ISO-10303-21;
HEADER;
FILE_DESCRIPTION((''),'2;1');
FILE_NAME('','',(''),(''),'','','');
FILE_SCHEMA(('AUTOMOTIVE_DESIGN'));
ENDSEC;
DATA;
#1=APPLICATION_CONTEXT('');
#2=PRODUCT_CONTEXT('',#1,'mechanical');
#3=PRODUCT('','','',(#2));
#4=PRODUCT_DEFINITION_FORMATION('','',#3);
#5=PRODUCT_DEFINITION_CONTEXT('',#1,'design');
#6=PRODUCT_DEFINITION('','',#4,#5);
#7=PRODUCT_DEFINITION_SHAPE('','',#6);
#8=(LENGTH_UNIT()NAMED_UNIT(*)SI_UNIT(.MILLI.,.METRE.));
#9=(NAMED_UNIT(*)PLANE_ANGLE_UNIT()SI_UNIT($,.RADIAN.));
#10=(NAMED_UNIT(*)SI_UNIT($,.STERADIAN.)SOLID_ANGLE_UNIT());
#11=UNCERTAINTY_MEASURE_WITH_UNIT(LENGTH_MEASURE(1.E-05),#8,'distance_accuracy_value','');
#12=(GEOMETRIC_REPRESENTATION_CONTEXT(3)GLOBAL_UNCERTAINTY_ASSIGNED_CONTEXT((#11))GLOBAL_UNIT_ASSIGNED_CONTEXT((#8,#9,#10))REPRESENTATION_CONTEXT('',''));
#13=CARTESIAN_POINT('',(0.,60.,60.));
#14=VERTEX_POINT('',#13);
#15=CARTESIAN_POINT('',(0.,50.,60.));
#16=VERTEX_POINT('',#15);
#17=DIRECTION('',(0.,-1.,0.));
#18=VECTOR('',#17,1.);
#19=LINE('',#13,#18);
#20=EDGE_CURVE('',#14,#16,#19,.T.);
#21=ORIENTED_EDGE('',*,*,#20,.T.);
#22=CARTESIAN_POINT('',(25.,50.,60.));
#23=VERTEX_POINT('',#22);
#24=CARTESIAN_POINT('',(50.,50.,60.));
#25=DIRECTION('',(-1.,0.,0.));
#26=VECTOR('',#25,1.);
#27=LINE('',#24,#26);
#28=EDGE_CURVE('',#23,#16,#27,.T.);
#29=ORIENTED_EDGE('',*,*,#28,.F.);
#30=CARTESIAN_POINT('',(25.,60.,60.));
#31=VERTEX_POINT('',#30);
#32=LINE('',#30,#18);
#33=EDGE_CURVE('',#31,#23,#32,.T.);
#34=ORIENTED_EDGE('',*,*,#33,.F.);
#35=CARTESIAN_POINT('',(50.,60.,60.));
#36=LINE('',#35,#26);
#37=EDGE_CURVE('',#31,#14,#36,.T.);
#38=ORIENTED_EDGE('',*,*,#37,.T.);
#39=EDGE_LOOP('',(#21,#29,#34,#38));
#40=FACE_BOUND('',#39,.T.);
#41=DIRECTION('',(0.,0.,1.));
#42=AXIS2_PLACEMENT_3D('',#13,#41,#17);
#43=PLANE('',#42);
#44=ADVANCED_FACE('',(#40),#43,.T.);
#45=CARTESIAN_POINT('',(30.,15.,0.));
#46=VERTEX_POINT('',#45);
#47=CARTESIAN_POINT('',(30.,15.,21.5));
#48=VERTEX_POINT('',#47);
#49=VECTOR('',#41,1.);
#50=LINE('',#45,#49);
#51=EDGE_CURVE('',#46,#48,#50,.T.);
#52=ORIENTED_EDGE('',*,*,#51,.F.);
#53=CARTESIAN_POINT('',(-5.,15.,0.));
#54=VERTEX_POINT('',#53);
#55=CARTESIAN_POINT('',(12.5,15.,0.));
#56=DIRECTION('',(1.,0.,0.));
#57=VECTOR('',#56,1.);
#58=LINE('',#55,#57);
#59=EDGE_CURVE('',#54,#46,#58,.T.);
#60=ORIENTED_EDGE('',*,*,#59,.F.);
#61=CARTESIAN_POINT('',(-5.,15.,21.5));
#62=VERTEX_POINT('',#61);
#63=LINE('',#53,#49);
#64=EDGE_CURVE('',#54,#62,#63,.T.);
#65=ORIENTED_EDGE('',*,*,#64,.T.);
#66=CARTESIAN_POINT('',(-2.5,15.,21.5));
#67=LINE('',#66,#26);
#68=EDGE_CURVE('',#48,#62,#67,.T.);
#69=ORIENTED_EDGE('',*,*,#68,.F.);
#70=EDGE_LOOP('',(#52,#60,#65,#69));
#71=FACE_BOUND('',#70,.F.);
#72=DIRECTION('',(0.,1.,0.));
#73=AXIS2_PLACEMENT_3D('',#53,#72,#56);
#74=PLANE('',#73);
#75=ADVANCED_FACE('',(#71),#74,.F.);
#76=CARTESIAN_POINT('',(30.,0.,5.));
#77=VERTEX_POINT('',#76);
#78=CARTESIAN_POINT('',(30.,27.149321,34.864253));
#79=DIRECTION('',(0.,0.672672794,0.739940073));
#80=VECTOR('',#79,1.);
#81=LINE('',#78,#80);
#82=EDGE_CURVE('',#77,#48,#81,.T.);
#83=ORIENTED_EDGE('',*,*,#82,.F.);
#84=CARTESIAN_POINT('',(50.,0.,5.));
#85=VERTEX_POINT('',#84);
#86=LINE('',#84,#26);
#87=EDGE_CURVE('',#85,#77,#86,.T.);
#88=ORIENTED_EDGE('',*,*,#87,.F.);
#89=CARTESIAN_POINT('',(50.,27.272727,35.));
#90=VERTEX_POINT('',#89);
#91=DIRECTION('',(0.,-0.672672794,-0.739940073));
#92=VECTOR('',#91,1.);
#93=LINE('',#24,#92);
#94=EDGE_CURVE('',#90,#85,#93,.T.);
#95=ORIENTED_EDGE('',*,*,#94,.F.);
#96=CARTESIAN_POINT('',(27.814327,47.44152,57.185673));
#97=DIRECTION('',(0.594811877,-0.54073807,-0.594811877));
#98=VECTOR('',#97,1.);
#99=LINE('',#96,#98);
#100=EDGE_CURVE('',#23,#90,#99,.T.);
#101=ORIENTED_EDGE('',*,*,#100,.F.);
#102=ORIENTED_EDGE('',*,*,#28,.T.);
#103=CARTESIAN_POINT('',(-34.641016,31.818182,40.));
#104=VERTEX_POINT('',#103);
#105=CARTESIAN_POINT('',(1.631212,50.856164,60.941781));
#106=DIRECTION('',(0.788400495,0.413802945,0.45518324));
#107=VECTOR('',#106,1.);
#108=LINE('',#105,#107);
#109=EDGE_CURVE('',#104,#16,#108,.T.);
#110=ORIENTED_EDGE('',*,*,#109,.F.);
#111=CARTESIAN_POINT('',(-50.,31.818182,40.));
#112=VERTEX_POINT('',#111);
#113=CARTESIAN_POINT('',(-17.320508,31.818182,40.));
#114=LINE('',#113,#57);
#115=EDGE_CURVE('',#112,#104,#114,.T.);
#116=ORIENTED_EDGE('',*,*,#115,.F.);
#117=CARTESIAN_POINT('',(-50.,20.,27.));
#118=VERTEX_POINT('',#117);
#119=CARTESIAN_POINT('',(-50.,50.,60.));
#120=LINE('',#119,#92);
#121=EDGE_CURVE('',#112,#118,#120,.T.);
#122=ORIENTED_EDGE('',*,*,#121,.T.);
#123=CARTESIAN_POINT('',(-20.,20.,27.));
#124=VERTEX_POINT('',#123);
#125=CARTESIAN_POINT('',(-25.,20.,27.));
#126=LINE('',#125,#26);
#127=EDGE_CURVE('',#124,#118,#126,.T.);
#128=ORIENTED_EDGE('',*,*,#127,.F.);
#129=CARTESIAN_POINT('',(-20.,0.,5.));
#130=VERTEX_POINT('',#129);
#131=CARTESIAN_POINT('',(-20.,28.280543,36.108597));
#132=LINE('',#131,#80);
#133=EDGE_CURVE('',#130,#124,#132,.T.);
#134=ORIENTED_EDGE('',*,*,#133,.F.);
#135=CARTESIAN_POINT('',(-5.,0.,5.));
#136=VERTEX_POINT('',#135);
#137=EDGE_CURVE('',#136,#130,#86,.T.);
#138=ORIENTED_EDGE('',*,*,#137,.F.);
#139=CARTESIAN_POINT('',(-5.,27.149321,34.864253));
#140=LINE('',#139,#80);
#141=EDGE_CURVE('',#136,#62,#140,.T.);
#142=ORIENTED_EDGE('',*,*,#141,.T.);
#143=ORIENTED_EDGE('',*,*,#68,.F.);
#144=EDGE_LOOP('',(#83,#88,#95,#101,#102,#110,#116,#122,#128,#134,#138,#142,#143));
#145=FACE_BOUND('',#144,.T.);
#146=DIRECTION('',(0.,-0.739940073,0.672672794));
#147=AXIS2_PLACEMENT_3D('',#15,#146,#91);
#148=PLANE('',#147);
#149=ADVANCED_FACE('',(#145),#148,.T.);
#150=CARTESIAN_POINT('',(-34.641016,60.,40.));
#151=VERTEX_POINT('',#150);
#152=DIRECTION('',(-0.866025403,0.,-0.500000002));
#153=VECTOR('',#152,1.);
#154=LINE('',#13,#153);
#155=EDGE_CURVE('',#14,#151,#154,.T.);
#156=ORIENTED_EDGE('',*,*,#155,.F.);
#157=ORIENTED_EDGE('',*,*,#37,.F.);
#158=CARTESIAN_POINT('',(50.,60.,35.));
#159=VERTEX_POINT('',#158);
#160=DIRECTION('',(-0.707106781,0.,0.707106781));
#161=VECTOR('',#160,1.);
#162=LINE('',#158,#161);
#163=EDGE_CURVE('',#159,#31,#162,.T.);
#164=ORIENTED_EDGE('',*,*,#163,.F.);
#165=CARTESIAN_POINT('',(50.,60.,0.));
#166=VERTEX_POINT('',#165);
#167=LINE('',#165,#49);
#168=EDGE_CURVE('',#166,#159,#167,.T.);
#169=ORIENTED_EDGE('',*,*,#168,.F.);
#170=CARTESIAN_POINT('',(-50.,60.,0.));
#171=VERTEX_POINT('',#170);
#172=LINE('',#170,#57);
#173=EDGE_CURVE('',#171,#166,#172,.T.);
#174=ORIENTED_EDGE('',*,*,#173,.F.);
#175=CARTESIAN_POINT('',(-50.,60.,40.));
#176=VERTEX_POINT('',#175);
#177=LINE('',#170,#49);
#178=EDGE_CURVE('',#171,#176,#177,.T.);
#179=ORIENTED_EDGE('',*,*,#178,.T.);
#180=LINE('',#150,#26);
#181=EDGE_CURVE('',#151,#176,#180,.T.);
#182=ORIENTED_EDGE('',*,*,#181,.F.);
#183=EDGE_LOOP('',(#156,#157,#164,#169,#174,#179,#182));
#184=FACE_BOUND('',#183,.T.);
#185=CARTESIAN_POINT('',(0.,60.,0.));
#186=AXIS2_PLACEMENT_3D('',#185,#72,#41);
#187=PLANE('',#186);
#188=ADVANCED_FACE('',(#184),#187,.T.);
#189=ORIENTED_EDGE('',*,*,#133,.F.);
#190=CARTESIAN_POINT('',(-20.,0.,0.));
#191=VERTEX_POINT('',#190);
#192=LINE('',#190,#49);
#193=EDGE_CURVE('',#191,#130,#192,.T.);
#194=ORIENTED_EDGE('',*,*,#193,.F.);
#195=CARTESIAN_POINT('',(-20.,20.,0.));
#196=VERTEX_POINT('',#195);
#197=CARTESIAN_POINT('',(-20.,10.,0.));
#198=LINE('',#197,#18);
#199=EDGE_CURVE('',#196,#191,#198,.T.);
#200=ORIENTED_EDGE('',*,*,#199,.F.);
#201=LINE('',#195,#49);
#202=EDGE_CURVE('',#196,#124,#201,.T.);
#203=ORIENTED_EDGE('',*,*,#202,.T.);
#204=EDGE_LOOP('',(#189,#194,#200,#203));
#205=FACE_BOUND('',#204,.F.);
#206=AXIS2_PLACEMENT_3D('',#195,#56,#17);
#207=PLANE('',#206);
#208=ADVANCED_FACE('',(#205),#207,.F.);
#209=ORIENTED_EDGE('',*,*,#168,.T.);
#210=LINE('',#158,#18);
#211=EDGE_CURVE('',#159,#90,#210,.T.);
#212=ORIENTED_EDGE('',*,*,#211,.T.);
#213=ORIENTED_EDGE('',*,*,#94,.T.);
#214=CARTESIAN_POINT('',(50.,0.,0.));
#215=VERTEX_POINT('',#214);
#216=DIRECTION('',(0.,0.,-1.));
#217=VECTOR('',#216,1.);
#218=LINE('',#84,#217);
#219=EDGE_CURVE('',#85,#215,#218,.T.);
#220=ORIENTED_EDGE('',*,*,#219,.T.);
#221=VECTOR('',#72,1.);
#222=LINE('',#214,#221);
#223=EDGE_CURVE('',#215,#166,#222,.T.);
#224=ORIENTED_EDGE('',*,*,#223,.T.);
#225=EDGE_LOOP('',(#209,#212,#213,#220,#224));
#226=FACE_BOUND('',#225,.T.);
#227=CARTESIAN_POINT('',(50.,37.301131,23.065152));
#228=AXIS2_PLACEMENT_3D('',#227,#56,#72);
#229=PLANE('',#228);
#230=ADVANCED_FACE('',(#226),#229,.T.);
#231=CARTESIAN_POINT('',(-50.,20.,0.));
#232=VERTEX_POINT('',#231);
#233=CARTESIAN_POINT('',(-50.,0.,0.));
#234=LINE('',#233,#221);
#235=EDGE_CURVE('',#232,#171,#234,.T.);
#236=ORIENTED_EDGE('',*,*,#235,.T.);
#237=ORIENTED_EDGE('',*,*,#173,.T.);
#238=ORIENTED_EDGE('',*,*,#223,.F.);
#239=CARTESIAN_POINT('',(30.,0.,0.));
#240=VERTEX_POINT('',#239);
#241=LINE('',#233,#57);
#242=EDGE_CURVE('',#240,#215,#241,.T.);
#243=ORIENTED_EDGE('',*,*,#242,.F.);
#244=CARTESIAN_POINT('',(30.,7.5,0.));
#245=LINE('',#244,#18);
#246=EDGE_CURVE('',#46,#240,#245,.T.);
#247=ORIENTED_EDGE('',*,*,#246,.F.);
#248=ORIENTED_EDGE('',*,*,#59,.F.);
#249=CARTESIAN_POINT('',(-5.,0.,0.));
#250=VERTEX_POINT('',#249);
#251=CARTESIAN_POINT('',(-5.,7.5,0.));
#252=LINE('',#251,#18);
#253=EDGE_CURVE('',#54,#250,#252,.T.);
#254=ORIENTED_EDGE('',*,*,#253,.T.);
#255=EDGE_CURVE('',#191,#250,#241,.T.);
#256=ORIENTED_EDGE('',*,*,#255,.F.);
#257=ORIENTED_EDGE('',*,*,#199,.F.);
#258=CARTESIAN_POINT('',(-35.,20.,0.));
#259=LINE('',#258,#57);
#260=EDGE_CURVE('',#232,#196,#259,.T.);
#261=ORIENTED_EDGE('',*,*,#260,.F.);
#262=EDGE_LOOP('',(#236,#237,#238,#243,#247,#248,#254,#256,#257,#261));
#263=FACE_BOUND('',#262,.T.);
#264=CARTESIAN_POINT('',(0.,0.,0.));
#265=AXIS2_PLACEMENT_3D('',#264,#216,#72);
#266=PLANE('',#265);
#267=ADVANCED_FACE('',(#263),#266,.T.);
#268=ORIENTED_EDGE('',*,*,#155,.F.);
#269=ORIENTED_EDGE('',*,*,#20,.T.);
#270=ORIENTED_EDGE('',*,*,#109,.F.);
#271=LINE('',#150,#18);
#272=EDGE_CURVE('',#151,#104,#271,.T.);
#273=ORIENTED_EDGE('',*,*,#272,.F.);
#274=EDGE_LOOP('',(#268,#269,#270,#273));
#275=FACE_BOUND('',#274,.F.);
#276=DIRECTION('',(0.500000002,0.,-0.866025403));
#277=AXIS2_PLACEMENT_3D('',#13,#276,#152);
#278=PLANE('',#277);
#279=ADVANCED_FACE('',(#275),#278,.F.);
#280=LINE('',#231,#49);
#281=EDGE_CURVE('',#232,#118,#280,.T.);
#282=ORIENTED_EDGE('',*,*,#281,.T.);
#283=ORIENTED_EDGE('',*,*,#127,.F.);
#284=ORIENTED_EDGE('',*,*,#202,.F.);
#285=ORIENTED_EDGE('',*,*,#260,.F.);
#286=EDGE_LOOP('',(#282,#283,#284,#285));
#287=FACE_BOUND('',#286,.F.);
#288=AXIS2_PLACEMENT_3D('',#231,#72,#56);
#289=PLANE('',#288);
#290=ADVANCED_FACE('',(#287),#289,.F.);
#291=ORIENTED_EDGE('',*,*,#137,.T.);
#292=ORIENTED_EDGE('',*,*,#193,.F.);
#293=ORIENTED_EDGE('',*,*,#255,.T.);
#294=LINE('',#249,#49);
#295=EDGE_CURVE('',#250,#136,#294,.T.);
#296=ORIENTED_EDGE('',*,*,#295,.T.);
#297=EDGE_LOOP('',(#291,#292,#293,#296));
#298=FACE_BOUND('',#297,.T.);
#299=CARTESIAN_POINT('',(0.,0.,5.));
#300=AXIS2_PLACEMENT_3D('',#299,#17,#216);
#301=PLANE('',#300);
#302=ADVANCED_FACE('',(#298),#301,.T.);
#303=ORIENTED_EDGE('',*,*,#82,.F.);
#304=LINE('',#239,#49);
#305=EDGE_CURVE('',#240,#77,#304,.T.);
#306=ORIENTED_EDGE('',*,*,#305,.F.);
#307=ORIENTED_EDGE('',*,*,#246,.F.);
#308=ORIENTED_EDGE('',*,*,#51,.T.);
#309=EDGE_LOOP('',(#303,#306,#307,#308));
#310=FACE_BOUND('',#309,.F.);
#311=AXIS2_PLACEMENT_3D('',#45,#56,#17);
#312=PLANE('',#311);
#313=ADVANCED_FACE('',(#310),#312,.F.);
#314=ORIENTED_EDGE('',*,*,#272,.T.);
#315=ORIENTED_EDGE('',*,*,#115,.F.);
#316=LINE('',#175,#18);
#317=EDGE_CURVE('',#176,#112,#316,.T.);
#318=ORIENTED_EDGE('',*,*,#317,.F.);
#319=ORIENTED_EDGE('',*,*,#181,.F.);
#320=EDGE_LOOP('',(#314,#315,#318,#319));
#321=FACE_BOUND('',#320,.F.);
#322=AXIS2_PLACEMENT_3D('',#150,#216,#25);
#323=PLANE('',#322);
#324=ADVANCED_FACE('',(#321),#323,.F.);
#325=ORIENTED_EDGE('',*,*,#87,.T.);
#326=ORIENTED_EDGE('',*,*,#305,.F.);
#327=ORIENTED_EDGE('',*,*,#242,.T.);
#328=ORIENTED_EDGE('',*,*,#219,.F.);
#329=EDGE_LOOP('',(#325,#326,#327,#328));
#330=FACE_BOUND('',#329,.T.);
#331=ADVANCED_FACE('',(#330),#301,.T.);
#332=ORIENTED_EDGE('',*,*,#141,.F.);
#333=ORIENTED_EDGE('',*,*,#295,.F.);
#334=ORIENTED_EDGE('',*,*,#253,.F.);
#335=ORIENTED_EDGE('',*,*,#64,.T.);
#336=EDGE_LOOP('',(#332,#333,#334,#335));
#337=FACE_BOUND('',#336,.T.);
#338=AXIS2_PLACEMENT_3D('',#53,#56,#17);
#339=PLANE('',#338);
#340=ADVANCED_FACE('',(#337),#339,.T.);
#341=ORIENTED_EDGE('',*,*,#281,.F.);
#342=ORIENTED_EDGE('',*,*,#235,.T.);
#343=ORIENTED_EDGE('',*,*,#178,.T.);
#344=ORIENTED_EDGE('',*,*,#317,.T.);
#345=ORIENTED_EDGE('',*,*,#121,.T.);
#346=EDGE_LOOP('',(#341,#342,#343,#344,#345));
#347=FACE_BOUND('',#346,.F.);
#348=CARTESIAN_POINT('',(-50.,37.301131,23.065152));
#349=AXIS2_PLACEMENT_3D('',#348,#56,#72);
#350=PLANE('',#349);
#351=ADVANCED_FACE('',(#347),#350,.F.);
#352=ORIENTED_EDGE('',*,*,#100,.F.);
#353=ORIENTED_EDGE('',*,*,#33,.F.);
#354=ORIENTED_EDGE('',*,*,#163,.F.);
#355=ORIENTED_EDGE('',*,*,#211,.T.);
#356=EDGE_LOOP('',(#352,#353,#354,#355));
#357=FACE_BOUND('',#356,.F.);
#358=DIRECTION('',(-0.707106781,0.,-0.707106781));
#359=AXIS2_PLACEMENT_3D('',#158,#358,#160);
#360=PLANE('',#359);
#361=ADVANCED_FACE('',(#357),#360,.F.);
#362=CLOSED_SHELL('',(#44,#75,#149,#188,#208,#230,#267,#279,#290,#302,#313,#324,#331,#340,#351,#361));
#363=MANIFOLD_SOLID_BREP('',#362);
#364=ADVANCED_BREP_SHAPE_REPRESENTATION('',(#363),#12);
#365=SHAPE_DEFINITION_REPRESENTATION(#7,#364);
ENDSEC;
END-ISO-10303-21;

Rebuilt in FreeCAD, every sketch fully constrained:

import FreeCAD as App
import Part
import Sketcher
from FreeCAD import Vector
Q = App.Units.Quantity


def add_polygon(sketch, points):
    """Adds a closed chain of lines whose ends are joined by coincident constraints."""
    first, n = sketch.GeometryCount, len(points)
    for a, b in zip(points, points[1:] + points[:1]):
        sketch.addGeometry(Part.LineSegment(App.Vector(*a, 0), App.Vector(*b, 0)), False)
    for i in range(n):
        sketch.addConstraint(Sketcher.Constraint("Coincident", first + i, 2, first + (i + 1) % n, 1))

doc = App.newDocument("Part")
body = doc.addObject("PartDesign::Body", "Body")

sketch1 = body.newObject("Sketcher::SketchObject", "Sketch")
sketch1.AttachmentSupport = (doc.getObject("YZ_Plane"), [""])
sketch1.MapMode = "FlatFace"
add_polygon(sketch1, [(0, 5), (0, 0), (60, 0), (60, 60), (50, 60)])
sketch1.addConstraint([
    Sketcher.Constraint("Vertical", 0),
    Sketcher.Constraint("Horizontal", 1),
    Sketcher.Constraint("Vertical", 2),
    Sketcher.Constraint("Horizontal", 3),
    Sketcher.Constraint("Coincident", 0, 2, -1, 1),
    Sketcher.Constraint("Equal", 1, 2),
    Sketcher.Constraint("DistanceX", 1, 1, 1, 2, 60.0),
    Sketcher.Constraint("DistanceX", 3, 2, 3, 1, 10.0),
    Sketcher.Constraint("DistanceY", 0, 2, 0, 1, 5.0),
])
pad1 = body.newObject("PartDesign::Pad", "Pad")
pad1.Profile = sketch1
pad1.Length = 100
pad1.Midplane = True

sketch2 = body.newObject("Sketcher::SketchObject", "Sketch001")
sketch2.AttachmentSupport = (doc.getObject("XY_Plane"), [""])
sketch2.MapMode = "FlatFace"
add_polygon(sketch2, [(-5, 0), (-5, 15), (30, 15), (30, 0)])
add_polygon(sketch2, [(-50, 0), (-50, 20), (-20, 20), (-20, 0)])
sketch2.addConstraint([
    Sketcher.Constraint("Vertical", 0),
    Sketcher.Constraint("Horizontal", 1),
    Sketcher.Constraint("Vertical", 2),
    Sketcher.Constraint("Horizontal", 3),
    Sketcher.Constraint("Vertical", 4),
    Sketcher.Constraint("Horizontal", 5),
    Sketcher.Constraint("Vertical", 6),
    Sketcher.Constraint("Horizontal", 7),
    Sketcher.Constraint("PointOnObject", 2, 2, -1),
    Sketcher.Constraint("PointOnObject", 6, 2, -1),
    Sketcher.Constraint("DistanceX", 1, 1, 1, 2, 35.0),
    Sketcher.Constraint("DistanceX", 5, 1, 5, 2, 30.0),
    Sketcher.Constraint("DistanceY", 0, 1, 0, 2, 15.0),
    Sketcher.Constraint("DistanceY", 4, 1, 4, 2, 20.0),
    Sketcher.Constraint("DistanceX", 0, 2, -1, 1, 5.0),
    Sketcher.Constraint("DistanceX", 4, 2, -1, 1, 50.0),
])
pocket1 = body.newObject("PartDesign::Pocket", "Pocket")
pocket1.Profile = sketch2
pocket1.Type = "ThroughAll"
pocket1.Reversed = True

sketch3 = body.newObject("Sketcher::SketchObject", "Sketch002")
sketch3.AttachmentSupport = (doc.getObject("XZ_Plane"), [""])
sketch3.MapMode = "FlatFace"
sketch3.AttachmentOffset = App.Placement(Vector(0, 0, -60), App.Rotation())
add_polygon(sketch3, [(-50, 60), (0, 60), (-35, 40), (-50, 40)])
add_polygon(sketch3, [(25, 60), (50, 60), (50, 35)])
sketch3.addConstraint([
    Sketcher.Constraint("Horizontal", 0),
    Sketcher.Constraint("Horizontal", 2),
    Sketcher.Constraint("Vertical", 3),
    Sketcher.Constraint("Horizontal", 4),
    Sketcher.Constraint("Vertical", 5),
    Sketcher.Constraint("Symmetric", 3, 2, 4, 2, -2),
    Sketcher.Constraint("PointOnObject", 0, 2, -2),
    Sketcher.Constraint("Equal", 4, 5),
    Sketcher.Constraint("DistanceX", 0, 1, 0, 2, 50.0),
    Sketcher.Constraint("DistanceX", 4, 1, 4, 2, 25.0),
    Sketcher.Constraint("DistanceY", 3, 1, 3, 2, 20.0),
    Sketcher.Constraint("Angle", 1, Q("-150 deg")),
    Sketcher.Constraint("DistanceY", -1, 1, 0, 2, 60.0),
])
pocket2 = body.newObject("PartDesign::Pocket", "Pocket001")
pocket2.Profile = sketch3
pocket2.Type = "ThroughAll"
pocket2.Reversed = True

doc.recompute()
